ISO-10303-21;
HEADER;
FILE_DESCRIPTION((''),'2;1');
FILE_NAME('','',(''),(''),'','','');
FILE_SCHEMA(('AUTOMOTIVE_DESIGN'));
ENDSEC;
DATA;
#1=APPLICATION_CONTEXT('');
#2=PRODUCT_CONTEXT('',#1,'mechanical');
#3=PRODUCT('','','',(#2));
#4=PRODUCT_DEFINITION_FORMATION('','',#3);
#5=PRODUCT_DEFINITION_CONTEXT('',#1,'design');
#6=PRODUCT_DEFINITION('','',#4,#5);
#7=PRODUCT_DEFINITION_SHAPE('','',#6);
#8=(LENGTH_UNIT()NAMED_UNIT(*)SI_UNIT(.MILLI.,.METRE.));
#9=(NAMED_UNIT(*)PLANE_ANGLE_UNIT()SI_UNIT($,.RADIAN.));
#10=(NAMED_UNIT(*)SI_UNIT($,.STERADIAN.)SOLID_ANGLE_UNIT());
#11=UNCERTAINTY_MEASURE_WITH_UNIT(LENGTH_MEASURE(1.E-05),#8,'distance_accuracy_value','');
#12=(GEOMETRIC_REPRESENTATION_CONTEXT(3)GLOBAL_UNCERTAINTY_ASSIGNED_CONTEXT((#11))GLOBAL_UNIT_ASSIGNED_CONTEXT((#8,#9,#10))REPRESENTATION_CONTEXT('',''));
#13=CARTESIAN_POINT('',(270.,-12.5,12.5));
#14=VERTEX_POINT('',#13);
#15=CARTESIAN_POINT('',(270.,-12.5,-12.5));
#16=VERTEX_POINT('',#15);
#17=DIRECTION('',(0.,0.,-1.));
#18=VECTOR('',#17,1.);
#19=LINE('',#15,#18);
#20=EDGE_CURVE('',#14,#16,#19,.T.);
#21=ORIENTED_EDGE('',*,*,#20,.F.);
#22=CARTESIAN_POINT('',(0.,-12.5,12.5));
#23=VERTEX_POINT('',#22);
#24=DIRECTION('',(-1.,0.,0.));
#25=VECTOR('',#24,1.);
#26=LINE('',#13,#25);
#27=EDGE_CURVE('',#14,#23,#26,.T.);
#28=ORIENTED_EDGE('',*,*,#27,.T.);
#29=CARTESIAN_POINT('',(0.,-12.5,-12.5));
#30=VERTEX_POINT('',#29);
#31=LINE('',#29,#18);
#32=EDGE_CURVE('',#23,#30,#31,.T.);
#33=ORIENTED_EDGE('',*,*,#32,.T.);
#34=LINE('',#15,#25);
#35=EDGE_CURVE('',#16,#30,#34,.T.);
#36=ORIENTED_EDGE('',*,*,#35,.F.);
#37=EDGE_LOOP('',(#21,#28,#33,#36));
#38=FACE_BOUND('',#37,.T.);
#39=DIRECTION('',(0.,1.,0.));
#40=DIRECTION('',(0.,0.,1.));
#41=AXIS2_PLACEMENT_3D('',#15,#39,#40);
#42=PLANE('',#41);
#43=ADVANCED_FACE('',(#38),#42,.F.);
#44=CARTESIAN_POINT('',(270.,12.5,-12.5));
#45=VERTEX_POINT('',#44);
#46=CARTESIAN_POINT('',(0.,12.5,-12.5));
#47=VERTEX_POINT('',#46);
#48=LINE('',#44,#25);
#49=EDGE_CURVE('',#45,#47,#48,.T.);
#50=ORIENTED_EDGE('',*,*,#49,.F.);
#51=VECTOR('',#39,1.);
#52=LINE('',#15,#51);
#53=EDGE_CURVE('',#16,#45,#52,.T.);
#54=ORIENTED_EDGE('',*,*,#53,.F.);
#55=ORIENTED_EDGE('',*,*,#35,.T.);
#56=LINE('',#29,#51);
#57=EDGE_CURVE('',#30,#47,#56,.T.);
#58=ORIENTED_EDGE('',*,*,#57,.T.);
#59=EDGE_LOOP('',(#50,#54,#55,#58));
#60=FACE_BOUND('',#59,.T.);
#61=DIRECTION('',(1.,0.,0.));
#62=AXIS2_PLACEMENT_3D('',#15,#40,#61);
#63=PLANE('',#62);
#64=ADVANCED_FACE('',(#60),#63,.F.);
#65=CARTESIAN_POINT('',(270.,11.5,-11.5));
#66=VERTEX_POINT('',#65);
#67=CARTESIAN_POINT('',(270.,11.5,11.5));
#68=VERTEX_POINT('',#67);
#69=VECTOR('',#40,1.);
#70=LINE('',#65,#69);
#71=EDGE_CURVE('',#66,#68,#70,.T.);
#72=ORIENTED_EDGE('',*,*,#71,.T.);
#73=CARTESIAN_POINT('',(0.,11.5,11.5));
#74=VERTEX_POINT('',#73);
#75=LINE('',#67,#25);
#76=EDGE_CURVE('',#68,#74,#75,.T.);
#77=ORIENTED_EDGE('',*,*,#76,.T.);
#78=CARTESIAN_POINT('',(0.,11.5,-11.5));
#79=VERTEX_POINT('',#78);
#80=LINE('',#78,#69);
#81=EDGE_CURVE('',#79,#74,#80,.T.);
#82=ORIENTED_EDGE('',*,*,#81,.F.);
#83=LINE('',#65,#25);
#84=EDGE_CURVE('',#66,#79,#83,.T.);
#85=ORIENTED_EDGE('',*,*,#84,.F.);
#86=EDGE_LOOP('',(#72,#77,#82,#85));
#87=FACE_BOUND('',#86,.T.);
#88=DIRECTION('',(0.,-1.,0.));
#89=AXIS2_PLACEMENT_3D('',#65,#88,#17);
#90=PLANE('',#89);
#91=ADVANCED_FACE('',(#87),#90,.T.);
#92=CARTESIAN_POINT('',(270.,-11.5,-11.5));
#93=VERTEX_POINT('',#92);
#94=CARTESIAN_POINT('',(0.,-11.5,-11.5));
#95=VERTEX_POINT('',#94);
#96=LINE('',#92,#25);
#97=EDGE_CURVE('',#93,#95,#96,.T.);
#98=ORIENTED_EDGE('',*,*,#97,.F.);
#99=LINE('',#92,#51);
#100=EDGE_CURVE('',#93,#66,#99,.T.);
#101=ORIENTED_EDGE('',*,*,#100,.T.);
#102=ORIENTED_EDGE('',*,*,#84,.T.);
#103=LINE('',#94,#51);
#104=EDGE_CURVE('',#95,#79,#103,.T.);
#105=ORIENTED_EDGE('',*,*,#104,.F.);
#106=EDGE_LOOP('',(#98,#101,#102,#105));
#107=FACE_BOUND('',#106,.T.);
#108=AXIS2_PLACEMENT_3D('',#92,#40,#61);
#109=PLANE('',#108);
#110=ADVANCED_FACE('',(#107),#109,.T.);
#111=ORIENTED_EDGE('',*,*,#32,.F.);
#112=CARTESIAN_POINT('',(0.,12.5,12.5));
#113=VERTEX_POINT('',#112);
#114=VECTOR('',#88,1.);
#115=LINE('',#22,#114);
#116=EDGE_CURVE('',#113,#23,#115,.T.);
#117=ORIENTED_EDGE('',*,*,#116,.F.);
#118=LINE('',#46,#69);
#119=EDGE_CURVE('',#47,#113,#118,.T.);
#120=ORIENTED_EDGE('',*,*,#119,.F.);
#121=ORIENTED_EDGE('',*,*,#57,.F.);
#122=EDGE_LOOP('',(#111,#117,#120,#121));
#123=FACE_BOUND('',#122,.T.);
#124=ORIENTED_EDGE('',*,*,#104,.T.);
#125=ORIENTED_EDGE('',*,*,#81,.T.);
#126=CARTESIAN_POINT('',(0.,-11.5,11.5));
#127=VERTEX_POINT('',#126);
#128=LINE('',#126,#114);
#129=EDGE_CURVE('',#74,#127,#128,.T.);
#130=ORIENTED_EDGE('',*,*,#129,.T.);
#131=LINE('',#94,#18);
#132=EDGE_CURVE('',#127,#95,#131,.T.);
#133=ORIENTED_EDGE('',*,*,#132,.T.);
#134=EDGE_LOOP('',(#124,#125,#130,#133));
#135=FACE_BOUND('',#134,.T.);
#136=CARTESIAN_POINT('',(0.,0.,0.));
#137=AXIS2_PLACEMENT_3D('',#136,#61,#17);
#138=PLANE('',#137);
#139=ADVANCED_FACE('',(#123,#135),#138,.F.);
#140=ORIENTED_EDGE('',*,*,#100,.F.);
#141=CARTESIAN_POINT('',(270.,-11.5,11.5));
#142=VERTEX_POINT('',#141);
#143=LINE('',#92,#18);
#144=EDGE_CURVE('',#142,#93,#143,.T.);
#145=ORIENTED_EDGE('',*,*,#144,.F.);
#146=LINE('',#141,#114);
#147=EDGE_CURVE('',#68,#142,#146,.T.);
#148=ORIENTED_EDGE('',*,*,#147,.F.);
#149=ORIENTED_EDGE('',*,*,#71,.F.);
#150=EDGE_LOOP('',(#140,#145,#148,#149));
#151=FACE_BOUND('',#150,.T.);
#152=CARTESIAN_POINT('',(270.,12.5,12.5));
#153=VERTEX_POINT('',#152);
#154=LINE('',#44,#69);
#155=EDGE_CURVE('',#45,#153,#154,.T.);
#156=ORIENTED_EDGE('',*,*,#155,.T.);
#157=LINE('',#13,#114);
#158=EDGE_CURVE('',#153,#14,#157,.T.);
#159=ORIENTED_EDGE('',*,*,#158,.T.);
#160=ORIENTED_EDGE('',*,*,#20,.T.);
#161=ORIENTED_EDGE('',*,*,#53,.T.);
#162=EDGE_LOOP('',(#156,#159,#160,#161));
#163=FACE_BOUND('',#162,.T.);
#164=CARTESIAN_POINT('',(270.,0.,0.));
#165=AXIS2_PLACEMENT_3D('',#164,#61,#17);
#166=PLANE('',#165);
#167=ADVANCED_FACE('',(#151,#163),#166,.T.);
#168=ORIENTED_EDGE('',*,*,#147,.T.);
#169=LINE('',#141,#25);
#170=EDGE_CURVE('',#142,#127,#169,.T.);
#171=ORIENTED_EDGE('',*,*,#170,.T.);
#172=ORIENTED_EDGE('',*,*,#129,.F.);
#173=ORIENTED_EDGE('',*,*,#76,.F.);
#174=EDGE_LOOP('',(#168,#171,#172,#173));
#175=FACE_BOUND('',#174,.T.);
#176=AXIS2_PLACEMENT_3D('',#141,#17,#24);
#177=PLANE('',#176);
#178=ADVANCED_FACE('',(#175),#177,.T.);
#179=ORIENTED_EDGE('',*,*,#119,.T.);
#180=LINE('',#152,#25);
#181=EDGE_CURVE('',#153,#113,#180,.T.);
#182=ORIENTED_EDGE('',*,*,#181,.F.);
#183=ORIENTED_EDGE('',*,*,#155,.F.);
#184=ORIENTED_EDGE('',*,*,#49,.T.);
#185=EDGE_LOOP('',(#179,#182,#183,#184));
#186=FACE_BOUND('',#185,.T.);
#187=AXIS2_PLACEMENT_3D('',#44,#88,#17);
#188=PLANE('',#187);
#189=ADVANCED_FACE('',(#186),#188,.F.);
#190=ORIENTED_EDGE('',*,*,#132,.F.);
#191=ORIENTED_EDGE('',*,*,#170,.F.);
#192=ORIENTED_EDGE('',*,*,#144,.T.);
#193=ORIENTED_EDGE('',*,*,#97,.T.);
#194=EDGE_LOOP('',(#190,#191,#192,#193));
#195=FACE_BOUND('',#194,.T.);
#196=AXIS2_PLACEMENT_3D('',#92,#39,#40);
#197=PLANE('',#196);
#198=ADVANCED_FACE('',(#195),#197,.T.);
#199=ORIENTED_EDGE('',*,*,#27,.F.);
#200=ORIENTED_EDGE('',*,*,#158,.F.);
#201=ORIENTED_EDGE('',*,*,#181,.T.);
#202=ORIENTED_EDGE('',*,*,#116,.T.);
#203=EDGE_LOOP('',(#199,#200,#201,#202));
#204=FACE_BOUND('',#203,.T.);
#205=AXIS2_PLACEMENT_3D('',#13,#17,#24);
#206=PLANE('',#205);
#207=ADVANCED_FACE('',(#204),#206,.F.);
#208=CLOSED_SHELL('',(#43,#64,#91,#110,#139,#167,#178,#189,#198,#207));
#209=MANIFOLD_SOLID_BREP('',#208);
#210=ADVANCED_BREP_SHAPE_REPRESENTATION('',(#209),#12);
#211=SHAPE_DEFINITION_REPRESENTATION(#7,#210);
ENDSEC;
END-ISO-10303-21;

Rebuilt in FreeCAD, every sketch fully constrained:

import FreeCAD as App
import Part
import Sketcher

V = App.Vector

doc = App.newDocument("Part")
body = doc.addObject("PartDesign::Body", "Body")

# Sketch on YZ plane
sketch1 = body.newObject("Sketcher::SketchObject", "Sketch")
sketch1.AttachmentSupport = (doc.getObject("YZ_Plane"), [""])
sketch1.MapMode = "FlatFace"
sketch1.addGeometry([
    Part.LineSegment(V(12, 12, 0), V(-12, 12, 0)),  # 0
    Part.LineSegment(V(-12, 12, 0), V(-12, -12, 0)),  # 1
    Part.LineSegment(V(-12, -12, 0), V(12, -12, 0)),  # 2
    Part.LineSegment(V(12, -12, 0), V(12, 12, 0)),  # 3
    Part.LineSegment(V(-12, -12, 0), V(-12, 12, 0)),  # 4
    Part.LineSegment(V(-12, 12, 0), V(12, 12, 0)),  # 5
    Part.LineSegment(V(12, 12, 0), V(12, -12, 0)),  # 6
    Part.LineSegment(V(12, -12, 0), V(-12, -12, 0)),  # 7
], False)
sketch1.addConstraint([
    Sketcher.Constraint("Coincident", 0, 2, 1, 1),
    Sketcher.Constraint("Coincident", 1, 2, 2, 1),
    Sketcher.Constraint("Coincident", 2, 2, 3, 1),
    Sketcher.Constraint("Coincident", 3, 2, 0, 1),
    Sketcher.Constraint("Coincident", 4, 2, 5, 1),
    Sketcher.Constraint("Coincident", 5, 2, 6, 1),
    Sketcher.Constraint("Coincident", 6, 2, 7, 1),
    Sketcher.Constraint("Coincident", 7, 2, 4, 1),
    Sketcher.Constraint("Horizontal", 0),
    Sketcher.Constraint("Vertical", 1),
    Sketcher.Constraint("Horizontal", 2),
    Sketcher.Constraint("Vertical", 3),
    Sketcher.Constraint("Vertical", 4),
    Sketcher.Constraint("Horizontal", 5),
    Sketcher.Constraint("Vertical", 6),
    Sketcher.Constraint("Horizontal", 7),
    Sketcher.Constraint("Symmetric", 0, 2, 2, 2, -1, 1),
    Sketcher.Constraint("Symmetric", 4, 2, 6, 2, -1, 1),
    Sketcher.Constraint("Equal", 2, 1),
    Sketcher.Constraint("Equal", 7, 4),
    Sketcher.Constraint("DistanceX", 0, 2, 0, 1, 25.0),
    Sketcher.Constraint("DistanceX", 5, 1, 5, 2, 23.0),
])
pad1 = body.newObject("PartDesign::Pad", "Pad")
pad1.Profile = sketch1
pad1.Length = 270

doc.recompute()
